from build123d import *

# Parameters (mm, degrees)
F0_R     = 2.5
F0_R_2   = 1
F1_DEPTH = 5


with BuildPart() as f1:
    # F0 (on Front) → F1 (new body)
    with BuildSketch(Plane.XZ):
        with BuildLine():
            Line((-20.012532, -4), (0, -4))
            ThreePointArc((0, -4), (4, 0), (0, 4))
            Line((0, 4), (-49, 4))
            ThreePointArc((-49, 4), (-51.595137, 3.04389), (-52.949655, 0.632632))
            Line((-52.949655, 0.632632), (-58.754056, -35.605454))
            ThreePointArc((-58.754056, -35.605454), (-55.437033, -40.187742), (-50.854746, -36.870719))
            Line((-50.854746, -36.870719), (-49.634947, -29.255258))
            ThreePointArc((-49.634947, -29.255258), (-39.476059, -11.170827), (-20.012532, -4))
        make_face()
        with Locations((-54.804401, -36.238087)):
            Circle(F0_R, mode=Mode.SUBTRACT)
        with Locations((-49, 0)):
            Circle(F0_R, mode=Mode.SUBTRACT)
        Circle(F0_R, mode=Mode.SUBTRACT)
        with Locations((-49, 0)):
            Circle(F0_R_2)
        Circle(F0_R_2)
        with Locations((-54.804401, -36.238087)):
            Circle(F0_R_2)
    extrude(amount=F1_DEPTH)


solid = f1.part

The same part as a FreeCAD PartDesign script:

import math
import FreeCAD as App
import Part
import Sketcher

V = App.Vector
Q = App.Units.Quantity

doc = App.newDocument("Part")
body = doc.addObject("PartDesign::Body", "Body")
body.AllowCompound = True

sketch1 = doc.addObject("Sketcher::SketchObject", "Sketch")
body.addObject(sketch1)
sketch1.AttachmentSupport = (doc.XZ_Plane, [""])
sketch1.MapMode = "FlatFace"
sketch1.addGeometry(Part.LineSegment(V(-20, -4, 0), V(0, -4, 0)), False)
sketch1.addGeometry(Part.ArcOfCircle(Part.Circle(V(0, 0, 0), V(0, 0, 1), 4), math.radians(-90), math.radians(90)), False)
sketch1.addGeometry(Part.LineSegment(V(0, 4, 0), V(-49, 4, 0)), False)
sketch1.addGeometry(Part.ArcOfCircle(Part.Circle(V(-49, 0, 0), V(0, 0, 1), 4), math.radians(90), math.radians(171)), False)
sketch1.addGeometry(Part.LineSegment(V(-52.9, 0.6, 0), V(-58.8, -35.6, 0)), False)
sketch1.addGeometry(Part.ArcOfCircle(Part.Circle(V(-54.8, -36.2, 0), V(0, 0, 1), 4), math.radians(171), math.radians(351)), False)
sketch1.addGeometry(Part.LineSegment(V(-50.9, -36.9, 0), V(-49.6, -29.3, 0)), False)
sketch1.addGeometry(Part.ArcOfCircle(Part.Circle(V(-20, -34, 0), V(0, 0, 1), 30), math.radians(90), math.radians(171)), False)
sketch1.addGeometry(Part.Circle(V(-54.8, -36.2, 0), V(0, 0, 1), 2.5), False)
sketch1.addGeometry(Part.Circle(V(-49, 0, 0), V(0, 0, 1), 2.5), False)
sketch1.addGeometry(Part.Circle(V(0, 0, 0), V(0, 0, 1), 2.5), False)
sketch1.addGeometry(Part.Circle(V(-49, 0, 0), V(0, 0, 1), 1), False)
sketch1.addGeometry(Part.Circle(V(0, 0, 0), V(0, 0, 1), 1), False)
sketch1.addGeometry(Part.Circle(V(-54.8, -36.2, 0), V(0, 0, 1), 1), False)
sketch1.addConstraint(Sketcher.Constraint("Tangent", 0, 2, 1, 1))
sketch1.addConstraint(Sketcher.Constraint("Tangent", 1, 2, 2, 1))
sketch1.addConstraint(Sketcher.Constraint("Tangent", 2, 2, 3, 1))
sketch1.addConstraint(Sketcher.Constraint("Tangent", 3, 2, 4, 1))
sketch1.addConstraint(Sketcher.Constraint("Tangent", 4, 2, 5, 1))
sketch1.addConstraint(Sketcher.Constraint("Tangent", 5, 2, 6, 1))
sketch1.addConstraint(Sketcher.Constraint("Tangent", 6, 2, 7, 2))
sketch1.addConstraint(Sketcher.Constraint("Tangent", 7, 1, 0, 1))
sketch1.addConstraint(Sketcher.Constraint("Horizontal", 0))
sketch1.addConstraint(Sketcher.Constraint("Horizontal", 2))
sketch1.addConstraint(Sketcher.Constraint("Coincident", 1, 3, -1, 1))
sketch1.addConstraint(Sketcher.Constraint("Coincident", 10, 3, -1, 1))
sketch1.addConstraint(Sketcher.Constraint("Coincident", 12, 3, -1, 1))
sketch1.addConstraint(Sketcher.Constraint("Coincident", 8, 3, 5, 3))
sketch1.addConstraint(Sketcher.Constraint("Coincident", 9, 3, 3, 3))
sketch1.addConstraint(Sketcher.Constraint("Coincident", 11, 3, 3, 3))
sketch1.addConstraint(Sketcher.Constraint("Coincident", 13, 3, 5, 3))
sketch1.addConstraint(Sketcher.Constraint("Equal", 1, 3))
sketch1.addConstraint(Sketcher.Constraint("Equal", 3, 5))
sketch1.addConstraint(Sketcher.Constraint("Equal", 8, 9))
sketch1.addConstraint(Sketcher.Constraint("Equal", 9, 10))
sketch1.addConstraint(Sketcher.Constraint("Equal", 11, 12))
sketch1.addConstraint(Sketcher.Constraint("Equal", 12, 13))
sketch1.addConstraint(Sketcher.Constraint("Parallel", 4, 6))
sketch1.addConstraint(Sketcher.Constraint("Diameter", 8, 5.0))
sketch1.addConstraint(Sketcher.Constraint("Diameter", 11, 2.0))
sketch1.addConstraint(Sketcher.Constraint("Radius", 1, 4.0))
sketch1.addConstraint(Sketcher.Constraint("Radius", 7, 30.0))
sketch1.addConstraint(Sketcher.Constraint("DistanceX", 2, 2, 2, 1, 49.0))
sketch1.addConstraint(Sketcher.Constraint("Angle", 4, Q("-99.1 deg")))
sketch1.addConstraint(Sketcher.Constraint("Distance", 4, 36.699999))
pad1 = doc.addObject("PartDesign::Pad", "Pad")
body.addObject(pad1)
pad1.Profile = sketch1
pad1.Length = 5

doc.recompute()
